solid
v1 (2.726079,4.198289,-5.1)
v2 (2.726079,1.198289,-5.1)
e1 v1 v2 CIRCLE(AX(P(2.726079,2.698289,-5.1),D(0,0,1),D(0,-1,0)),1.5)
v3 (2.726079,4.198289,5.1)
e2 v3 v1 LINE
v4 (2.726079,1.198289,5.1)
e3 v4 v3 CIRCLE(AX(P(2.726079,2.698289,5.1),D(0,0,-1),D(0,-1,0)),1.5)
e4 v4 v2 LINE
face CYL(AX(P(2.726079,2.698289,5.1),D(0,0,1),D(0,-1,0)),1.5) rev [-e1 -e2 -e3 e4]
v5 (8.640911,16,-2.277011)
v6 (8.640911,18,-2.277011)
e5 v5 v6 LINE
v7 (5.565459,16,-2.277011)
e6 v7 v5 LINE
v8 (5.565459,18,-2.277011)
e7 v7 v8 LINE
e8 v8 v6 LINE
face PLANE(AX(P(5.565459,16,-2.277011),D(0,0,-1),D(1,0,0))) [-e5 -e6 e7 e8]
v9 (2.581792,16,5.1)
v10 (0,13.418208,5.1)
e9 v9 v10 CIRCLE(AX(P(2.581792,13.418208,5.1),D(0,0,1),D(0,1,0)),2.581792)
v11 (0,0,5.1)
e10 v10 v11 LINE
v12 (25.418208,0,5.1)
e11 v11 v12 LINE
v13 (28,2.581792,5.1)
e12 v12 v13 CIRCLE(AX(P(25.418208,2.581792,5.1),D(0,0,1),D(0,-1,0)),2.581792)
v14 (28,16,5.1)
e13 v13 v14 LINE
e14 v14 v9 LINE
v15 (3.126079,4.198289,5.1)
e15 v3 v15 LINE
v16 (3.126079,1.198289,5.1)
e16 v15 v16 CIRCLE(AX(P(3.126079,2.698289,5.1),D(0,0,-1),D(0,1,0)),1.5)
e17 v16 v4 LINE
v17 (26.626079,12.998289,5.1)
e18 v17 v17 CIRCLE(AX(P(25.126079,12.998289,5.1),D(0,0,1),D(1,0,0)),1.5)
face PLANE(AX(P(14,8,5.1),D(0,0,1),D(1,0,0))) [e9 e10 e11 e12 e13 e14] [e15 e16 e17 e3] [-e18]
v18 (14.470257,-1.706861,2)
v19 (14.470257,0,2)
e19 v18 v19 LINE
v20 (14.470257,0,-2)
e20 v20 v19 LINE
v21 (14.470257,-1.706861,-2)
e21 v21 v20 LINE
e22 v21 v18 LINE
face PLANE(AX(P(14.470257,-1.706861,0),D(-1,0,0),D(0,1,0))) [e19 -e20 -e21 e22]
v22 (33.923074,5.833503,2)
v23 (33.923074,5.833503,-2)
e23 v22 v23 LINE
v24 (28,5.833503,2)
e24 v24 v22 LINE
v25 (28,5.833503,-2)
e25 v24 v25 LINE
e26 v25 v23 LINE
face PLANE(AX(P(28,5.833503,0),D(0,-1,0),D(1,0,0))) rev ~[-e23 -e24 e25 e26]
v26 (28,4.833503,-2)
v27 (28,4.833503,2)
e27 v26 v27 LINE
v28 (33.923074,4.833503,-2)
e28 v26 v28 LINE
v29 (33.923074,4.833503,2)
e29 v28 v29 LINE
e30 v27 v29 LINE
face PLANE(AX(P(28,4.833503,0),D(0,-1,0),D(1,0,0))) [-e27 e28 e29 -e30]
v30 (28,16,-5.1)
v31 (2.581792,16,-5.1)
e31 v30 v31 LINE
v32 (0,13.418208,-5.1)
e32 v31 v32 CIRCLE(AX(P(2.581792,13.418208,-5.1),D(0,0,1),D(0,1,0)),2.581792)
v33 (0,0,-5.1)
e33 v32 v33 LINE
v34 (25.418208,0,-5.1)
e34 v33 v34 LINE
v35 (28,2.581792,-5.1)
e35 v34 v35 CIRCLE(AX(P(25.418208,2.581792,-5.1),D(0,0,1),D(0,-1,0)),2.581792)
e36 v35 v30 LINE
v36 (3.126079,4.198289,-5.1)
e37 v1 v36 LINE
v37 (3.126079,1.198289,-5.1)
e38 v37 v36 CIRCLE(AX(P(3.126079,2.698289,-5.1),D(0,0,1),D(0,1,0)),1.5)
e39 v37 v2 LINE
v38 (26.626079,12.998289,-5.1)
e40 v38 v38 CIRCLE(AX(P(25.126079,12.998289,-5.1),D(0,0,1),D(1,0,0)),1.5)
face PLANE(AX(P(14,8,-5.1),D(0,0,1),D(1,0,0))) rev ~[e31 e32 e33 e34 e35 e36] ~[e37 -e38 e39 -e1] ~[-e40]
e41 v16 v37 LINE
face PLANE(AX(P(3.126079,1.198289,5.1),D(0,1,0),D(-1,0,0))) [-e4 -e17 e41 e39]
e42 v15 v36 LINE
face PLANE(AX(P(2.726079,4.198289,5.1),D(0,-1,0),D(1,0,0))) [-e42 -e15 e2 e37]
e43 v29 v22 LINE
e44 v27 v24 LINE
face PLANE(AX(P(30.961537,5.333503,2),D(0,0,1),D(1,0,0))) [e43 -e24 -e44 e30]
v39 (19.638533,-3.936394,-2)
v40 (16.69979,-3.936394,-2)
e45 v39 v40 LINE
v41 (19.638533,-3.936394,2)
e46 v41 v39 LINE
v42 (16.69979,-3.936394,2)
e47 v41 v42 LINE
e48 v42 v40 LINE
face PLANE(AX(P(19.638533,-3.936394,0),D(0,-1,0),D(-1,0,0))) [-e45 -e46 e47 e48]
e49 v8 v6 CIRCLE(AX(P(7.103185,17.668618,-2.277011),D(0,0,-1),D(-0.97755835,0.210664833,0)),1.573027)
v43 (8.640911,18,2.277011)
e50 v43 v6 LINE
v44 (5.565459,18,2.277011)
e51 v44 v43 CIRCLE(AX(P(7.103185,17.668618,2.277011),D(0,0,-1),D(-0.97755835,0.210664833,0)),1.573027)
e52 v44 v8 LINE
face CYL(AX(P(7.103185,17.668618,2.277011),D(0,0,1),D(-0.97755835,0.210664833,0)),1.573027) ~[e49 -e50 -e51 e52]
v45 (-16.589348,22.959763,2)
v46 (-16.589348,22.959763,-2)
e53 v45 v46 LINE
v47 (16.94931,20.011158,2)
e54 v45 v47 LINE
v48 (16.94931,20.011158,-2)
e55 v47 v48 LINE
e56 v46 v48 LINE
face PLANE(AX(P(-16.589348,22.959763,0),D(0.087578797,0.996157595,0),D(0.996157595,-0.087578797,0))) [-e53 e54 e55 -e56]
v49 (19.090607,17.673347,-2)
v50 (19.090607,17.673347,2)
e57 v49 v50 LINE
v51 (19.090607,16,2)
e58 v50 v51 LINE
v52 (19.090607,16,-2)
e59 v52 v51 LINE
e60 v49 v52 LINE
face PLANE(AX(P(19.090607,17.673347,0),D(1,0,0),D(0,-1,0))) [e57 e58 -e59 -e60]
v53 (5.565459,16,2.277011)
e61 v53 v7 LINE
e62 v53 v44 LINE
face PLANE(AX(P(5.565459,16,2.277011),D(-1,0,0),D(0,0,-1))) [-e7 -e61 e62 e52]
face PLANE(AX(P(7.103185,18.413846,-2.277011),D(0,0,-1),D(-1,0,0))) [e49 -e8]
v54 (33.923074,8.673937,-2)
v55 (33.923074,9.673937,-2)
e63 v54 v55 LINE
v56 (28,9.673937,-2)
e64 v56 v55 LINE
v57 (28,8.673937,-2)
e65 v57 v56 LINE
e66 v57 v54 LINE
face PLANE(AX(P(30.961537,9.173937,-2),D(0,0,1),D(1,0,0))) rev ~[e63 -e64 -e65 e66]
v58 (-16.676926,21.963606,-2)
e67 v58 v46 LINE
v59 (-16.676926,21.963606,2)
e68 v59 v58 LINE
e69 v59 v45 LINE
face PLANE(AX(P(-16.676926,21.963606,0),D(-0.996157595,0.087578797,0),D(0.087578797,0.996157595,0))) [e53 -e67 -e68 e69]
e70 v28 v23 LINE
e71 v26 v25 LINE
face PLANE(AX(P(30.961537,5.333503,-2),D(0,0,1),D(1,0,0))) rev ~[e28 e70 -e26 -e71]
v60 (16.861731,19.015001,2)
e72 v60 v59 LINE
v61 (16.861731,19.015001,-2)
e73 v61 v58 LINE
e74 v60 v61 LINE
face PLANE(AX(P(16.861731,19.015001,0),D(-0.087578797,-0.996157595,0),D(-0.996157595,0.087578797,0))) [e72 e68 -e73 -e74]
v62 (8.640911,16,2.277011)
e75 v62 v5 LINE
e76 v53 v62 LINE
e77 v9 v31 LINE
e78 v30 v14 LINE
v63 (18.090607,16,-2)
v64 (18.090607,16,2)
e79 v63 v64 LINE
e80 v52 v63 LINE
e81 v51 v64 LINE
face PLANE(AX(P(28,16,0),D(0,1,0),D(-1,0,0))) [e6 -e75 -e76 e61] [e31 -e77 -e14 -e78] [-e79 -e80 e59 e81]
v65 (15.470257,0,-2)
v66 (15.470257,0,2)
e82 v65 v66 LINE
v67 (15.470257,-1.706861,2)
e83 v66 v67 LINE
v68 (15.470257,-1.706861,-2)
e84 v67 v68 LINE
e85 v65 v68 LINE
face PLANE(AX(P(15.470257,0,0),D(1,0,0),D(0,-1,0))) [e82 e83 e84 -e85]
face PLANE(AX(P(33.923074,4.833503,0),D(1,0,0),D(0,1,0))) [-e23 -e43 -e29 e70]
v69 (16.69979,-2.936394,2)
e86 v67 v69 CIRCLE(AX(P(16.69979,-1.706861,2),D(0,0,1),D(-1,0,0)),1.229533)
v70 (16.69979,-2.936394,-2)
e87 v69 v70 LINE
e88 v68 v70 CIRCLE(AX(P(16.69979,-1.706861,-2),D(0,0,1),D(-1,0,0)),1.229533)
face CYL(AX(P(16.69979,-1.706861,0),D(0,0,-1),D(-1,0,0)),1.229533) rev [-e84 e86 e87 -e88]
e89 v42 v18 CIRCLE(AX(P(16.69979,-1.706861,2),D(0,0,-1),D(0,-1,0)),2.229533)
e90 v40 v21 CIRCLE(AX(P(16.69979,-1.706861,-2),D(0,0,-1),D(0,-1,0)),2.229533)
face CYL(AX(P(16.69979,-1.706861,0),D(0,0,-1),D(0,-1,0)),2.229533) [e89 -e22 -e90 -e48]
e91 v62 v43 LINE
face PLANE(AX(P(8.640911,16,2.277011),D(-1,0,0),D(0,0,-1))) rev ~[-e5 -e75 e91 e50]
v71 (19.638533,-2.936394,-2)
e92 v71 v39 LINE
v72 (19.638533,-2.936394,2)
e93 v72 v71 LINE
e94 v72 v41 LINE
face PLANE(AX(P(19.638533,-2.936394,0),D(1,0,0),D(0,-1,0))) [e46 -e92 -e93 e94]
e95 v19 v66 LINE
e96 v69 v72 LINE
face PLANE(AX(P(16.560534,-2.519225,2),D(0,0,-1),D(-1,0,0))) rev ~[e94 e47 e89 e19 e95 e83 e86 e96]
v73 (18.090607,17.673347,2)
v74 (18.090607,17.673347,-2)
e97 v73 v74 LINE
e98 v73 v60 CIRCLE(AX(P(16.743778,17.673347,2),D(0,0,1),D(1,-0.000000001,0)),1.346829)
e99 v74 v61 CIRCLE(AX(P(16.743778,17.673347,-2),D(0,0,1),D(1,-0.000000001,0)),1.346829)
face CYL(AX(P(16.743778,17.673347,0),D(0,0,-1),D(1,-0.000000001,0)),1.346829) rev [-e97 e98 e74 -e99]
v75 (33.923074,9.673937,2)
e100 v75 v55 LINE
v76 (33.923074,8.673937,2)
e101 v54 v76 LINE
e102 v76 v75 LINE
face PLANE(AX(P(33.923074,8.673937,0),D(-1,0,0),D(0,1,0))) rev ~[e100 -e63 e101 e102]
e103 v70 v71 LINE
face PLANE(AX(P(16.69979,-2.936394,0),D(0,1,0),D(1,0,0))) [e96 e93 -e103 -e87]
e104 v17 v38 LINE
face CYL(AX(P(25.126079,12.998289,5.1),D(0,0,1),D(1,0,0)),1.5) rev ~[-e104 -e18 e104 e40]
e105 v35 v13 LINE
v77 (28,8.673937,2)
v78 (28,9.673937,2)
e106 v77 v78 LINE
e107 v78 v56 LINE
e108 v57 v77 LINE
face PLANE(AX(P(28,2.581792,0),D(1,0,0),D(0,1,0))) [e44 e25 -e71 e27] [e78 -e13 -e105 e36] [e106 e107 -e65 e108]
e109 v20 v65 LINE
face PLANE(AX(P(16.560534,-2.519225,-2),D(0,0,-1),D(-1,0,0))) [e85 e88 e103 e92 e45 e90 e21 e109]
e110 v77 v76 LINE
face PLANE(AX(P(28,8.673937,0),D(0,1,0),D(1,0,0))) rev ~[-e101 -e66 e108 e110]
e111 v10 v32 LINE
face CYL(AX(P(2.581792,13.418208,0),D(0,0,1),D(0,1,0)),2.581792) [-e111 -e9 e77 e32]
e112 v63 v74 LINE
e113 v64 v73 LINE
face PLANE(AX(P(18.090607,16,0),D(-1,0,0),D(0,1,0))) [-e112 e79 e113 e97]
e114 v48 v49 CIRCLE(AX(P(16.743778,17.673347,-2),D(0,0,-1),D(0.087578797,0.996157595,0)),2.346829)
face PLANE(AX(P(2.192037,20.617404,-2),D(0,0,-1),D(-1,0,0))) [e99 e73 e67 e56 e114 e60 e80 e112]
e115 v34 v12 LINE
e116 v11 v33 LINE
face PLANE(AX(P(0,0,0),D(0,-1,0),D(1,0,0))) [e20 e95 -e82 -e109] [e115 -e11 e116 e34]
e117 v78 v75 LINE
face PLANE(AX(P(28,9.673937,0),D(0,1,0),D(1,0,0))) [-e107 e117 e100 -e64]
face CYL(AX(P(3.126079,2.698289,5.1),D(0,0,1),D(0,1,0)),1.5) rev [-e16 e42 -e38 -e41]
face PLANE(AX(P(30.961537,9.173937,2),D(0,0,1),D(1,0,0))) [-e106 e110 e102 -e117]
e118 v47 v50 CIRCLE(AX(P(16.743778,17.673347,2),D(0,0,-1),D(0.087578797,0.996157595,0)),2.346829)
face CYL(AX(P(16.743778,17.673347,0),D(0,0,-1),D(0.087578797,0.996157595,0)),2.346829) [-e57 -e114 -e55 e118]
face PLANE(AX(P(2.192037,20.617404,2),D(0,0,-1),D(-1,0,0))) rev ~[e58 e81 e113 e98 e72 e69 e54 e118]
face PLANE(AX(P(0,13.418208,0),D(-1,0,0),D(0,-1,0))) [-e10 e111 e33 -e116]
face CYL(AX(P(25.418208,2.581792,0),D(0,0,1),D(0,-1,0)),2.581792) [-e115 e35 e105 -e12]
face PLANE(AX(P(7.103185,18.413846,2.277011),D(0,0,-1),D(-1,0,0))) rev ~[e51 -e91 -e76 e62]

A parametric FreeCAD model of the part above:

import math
import FreeCAD as App
import Part
import Sketcher

V = App.Vector

doc = App.newDocument("Part")
body = doc.addObject("PartDesign::Body", "Body")

sketch1 = body.newObject("Sketcher::SketchObject", "Sketch")
sketch1.AttachmentSupport = (doc.getObject("XY_Plane"), [""])
sketch1.MapMode = "FlatFace"
sketch1.addGeometry(Part.LineSegment(V(0, 0, 0), V(25.4, 0, 0)), False)
sketch1.addGeometry(Part.ArcOfCircle(Part.Circle(V(25.4, 2.6, 0), V(0, 0, 1), 2.6), math.radians(-90), math.radians(0)), False)
sketch1.addGeometry(Part.LineSegment(V(28, 2.6, 0), V(28, 16, 0)), False)
sketch1.addGeometry(Part.LineSegment(V(28, 16, 0), V(2.6, 16, 0)), False)
sketch1.addGeometry(Part.ArcOfCircle(Part.Circle(V(2.6, 13.4, 0), V(0, 0, 1), 2.6), math.radians(90), math.radians(180)), False)
sketch1.addGeometry(Part.LineSegment(V(0, 13.4, 0), V(0, 0, 0)), False)
sketch1.addConstraint(Sketcher.Constraint("Tangent", 0, 2, 1, 1))
sketch1.addConstraint(Sketcher.Constraint("Tangent", 1, 2, 2, 1))
sketch1.addConstraint(Sketcher.Constraint("Coincident", 2, 2, 3, 1))
sketch1.addConstraint(Sketcher.Constraint("Tangent", 3, 2, 4, 1))
sketch1.addConstraint(Sketcher.Constraint("Tangent", 4, 2, 5, 1))
sketch1.addConstraint(Sketcher.Constraint("Coincident", 5, 2, 0, 1))
sketch1.addConstraint(Sketcher.Constraint("Horizontal", 0))
sketch1.addConstraint(Sketcher.Constraint("Vertical", 2))
sketch1.addConstraint(Sketcher.Constraint("Horizontal", 3))
sketch1.addConstraint(Sketcher.Constraint("Vertical", 5))
sketch1.addConstraint(Sketcher.Constraint("Coincident", 5, 2, -1, 1))
sketch1.addConstraint(Sketcher.Constraint("Equal", 1, 4))
sketch1.addConstraint(Sketcher.Constraint("DistanceX", -1, 1, 1, 2, 28.0))
sketch1.addConstraint(Sketcher.Constraint("DistanceY", -1, 1, 2, 2, 16.0))
sketch1.addConstraint(Sketcher.Constraint("Radius", 1, 2.581792))
pad1 = body.newObject("PartDesign::Pad", "Pad")
pad1.Profile = sketch1
pad1.Length = 10.2
pad1.Midplane = True

sketch2 = body.newObject("Sketcher::SketchObject", "Sketch001")
sketch2.AttachmentSupport = (doc.getObject("XY_Plane"), [""])
sketch2.MapMode = "FlatFace"
sketch2.AttachmentOffset = App.Placement(V(0, 0, 5.1), App.Rotation())
sketch2.addGeometry(Part.Circle(V(25.13, 13, 0), V(0, 0, 1), 1.5), False)
sketch2.addGeometry(Part.LineSegment(V(3.13, 4.2, 0), V(2.73, 4.2, 0)), False)
sketch2.addGeometry(Part.ArcOfCircle(Part.Circle(V(2.73, 2.7, 0), V(0, 0, 1), 1.5), math.radians(90), math.radians(270)), False)
sketch2.addGeometry(Part.LineSegment(V(2.73, 1.2, 0), V(3.13, 1.2, 0)), False)
sketch2.addGeometry(Part.ArcOfCircle(Part.Circle(V(3.13, 2.7, 0), V(0, 0, 1), 1.5), math.radians(-90), math.radians(90)), False)
sketch2.addConstraint(Sketcher.Constraint("Tangent", 1, 2, 2, 1))
sketch2.addConstraint(Sketcher.Constraint("Tangent", 2, 2, 3, 1))
sketch2.addConstraint(Sketcher.Constraint("Tangent", 3, 2, 4, 1))
sketch2.addConstraint(Sketcher.Constraint("Tangent", 4, 2, 1, 1))
sketch2.addConstraint(Sketcher.Constraint("Horizontal", 1))
sketch2.addConstraint(Sketcher.Constraint("Horizontal", 3))
sketch2.addConstraint(Sketcher.Constraint("Equal", 0, 2))
sketch2.addConstraint(Sketcher.Constraint("Diameter", 0, 3.0))
sketch2.addConstraint(Sketcher.Constraint("DistanceX", 1, 2, 1, 1, 0.4))
sketch2.addConstraint(Sketcher.Constraint("DistanceX", 4, 3, 0, 3, 22.0))
sketch2.addConstraint(Sketcher.Constraint("DistanceY", 2, 3, 0, 3, 10.3))
sketch2.addConstraint(Sketcher.Constraint("DistanceX", -1, 1, 0, 3, 25.126079))
sketch2.addConstraint(Sketcher.Constraint("DistanceY", -1, 1, 0, 3, 12.998289))
pocket1 = body.newObject("PartDesign::Pocket", "Pocket")
pocket1.Profile = sketch2
pocket1.Type = "ThroughAll"

sketch3 = body.newObject("Sketcher::SketchObject", "Sketch002")
sketch3.AttachmentSupport = (doc.getObject("XZ_Plane"), [""])
sketch3.MapMode = "FlatFace"
sketch3.AttachmentOffset = App.Placement(V(0, 0, -16), App.Rotation())
sketch3.addGeometry(Part.LineSegment(V(5.6, -2.3, 0), V(5.6, 2.3, 0)), False)
sketch3.addGeometry(Part.LineSegment(V(5.6, 2.3, 0), V(8.6, 2.3, 0)), False)
sketch3.addGeometry(Part.LineSegment(V(8.6, 2.3, 0), V(8.6, -2.3, 0)), False)
sketch3.addGeometry(Part.LineSegment(V(8.6, -2.3, 0), V(5.6, -2.3, 0)), False)
sketch3.addConstraint(Sketcher.Constraint("Coincident", 0, 2, 1, 1))
sketch3.addConstraint(Sketcher.Constraint("Coincident", 1, 2, 2, 1))
sketch3.addConstraint(Sketcher.Constraint("Coincident", 2, 2, 3, 1))
sketch3.addConstraint(Sketcher.Constraint("Coincident", 3, 2, 0, 1))
sketch3.addConstraint(Sketcher.Constraint("Vertical", 0))
sketch3.addConstraint(Sketcher.Constraint("Horizontal", 1))
sketch3.addConstraint(Sketcher.Constraint("Vertical", 2))
sketch3.addConstraint(Sketcher.Constraint("Horizontal", 3))
sketch3.addConstraint(Sketcher.Constraint("DistanceX", 1, 1, 1, 2, 3.075452))
sketch3.addConstraint(Sketcher.Constraint("DistanceY", 0, 1, 0, 2, 4.554022))
sketch3.addConstraint(Sketcher.Constraint("DistanceX", -1, 1, 0, 2, 5.565459))
sketch3.addConstraint(Sketcher.Constraint("DistanceY", -1, 1, 0, 2, 2.277011))
pad2 = body.newObject("PartDesign::Pad", "Pad001")
pad2.Profile = sketch3
pad2.Length = 2
pad2.Reversed = True

sketch4 = body.newObject("Sketcher::SketchObject", "Sketch003")
sketch4.AttachmentSupport = (doc.getObject("XY_Plane"), [""])
sketch4.MapMode = "FlatFace"
sketch4.AttachmentOffset = App.Placement(V(0, 0, 2.277011), App.Rotation())
sketch4.addGeometry(Part.LineSegment(V(8.6, 18, 0), V(5.6, 18, 0)), False)
sketch4.addGeometry(Part.ArcOfCircle(Part.Circle(V(7.1, 17.7, 0), V(0, 0, 1), 1.6), math.radians(12), math.radians(168)), False)
sketch4.addConstraint(Sketcher.Constraint("Coincident", 0, 1, 1, 1))
sketch4.addConstraint(Sketcher.Constraint("Coincident", 1, 2, 0, 2))
sketch4.addConstraint(Sketcher.Constraint("Horizontal", 0))
sketch4.addConstraint(Sketcher.Constraint("DistanceY", -1, 1, 0, 1, 18.0))
sketch4.addConstraint(Sketcher.Constraint("Radius", 1, 1.573027))
sketch4.addConstraint(Sketcher.Constraint("DistanceX", 0, 2, 0, 1, 3.075452))
sketch4.addConstraint(Sketcher.Constraint("DistanceX", -1, 1, 0, 1, 8.640911))
pad3 = body.newObject("PartDesign::Pad", "Pad002")
pad3.Profile = sketch4
pad3.Length = 4.554022
pad3.Reversed = True

sketch5 = body.newObject("Sketcher::SketchObject", "Sketch004")
sketch5.AttachmentSupport = (doc.getObject("XY_Plane"), [""])
sketch5.MapMode = "FlatFace"
sketch5.addGeometry(Part.LineSegment(V(18.090607, 17.673347, 0), V(18.090607, 16, 0)), False)
sketch5.addGeometry(Part.LineSegment(V(18.090607, 16, 0), V(19.090607, 16, 0)), False)
sketch5.addGeometry(Part.LineSegment(V(19.090607, 16, 0), V(19.090607, 17.673347, 0)), False)
sketch5.addGeometry(Part.ArcOfCircle(Part.Circle(V(16.743778, 17.673347, 0), V(0, 0, 1), 2.346829), math.radians(0), math.radians(84.975668)), False)
sketch5.addGeometry(Part.LineSegment(V(16.94931, 20.011158, 0), V(-16.589348, 22.959763, 0)), False)
sketch5.addGeometry(Part.LineSegment(V(-16.589348, 22.959763, 0), V(-16.676926, 21.963606, 0)), False)
sketch5.addGeometry(Part.LineSegment(V(-16.676926, 21.963606, 0), V(16.861731, 19.015001, 0)), False)
sketch5.addGeometry(Part.ArcOfCircle(Part.Circle(V(16.743778, 17.673347, 0), V(0, 0, 1), 1.346829), math.radians(0), math.radians(84.975668)), False)
sketch5.addGeometry(Part.LineSegment(V(15.470257, -1.706861, 0), V(15.470257, 0, 0)), False)
sketch5.addGeometry(Part.LineSegment(V(15.470257, 0, 0), V(14.470257, 0, 0)), False)
sketch5.addGeometry(Part.LineSegment(V(14.470257, 0, 0), V(14.470257, -1.706861, 0)), False)
sketch5.addGeometry(Part.ArcOfCircle(Part.Circle(V(16.69979, -1.706861, 0), V(0, 0, 1), 2.229533), math.radians(180), math.radians(270)), False)
sketch5.addGeometry(Part.LineSegment(V(16.69979, -3.936394, 0), V(19.638533, -3.936394, 0)), False)
sketch5.addGeometry(Part.LineSegment(V(19.638533, -3.936394, 0), V(19.638533, -2.936394, 0)), False)
sketch5.addGeometry(Part.LineSegment(V(19.638533, -2.936394, 0), V(16.69979, -2.936394, 0)), False)
sketch5.addGeometry(Part.ArcOfCircle(Part.Circle(V(16.69979, -1.706861, 0), V(0, 0, 1), 1.229533), math.radians(180), math.radians(270)), False)
sketch5.addGeometry(Part.LineSegment(V(28, 9.673937, 0), V(28, 8.673937, 0)), False)
sketch5.addGeometry(Part.LineSegment(V(28, 8.673937, 0), V(33.923074, 8.673937, 0)), False)
sketch5.addGeometry(Part.LineSegment(V(33.923074, 8.673937, 0), V(33.923074, 9.673937, 0)), False)
sketch5.addGeometry(Part.LineSegment(V(33.923074, 9.673937, 0), V(28, 9.673937, 0)), False)
sketch5.addGeometry(Part.LineSegment(V(28, 5.833503, 0), V(28, 4.833503, 0)), False)
sketch5.addGeometry(Part.LineSegment(V(28, 4.833503, 0), V(33.923074, 4.833503, 0)), False)
sketch5.addGeometry(Part.LineSegment(V(33.923074, 4.833503, 0), V(33.923074, 5.833503, 0)), False)
sketch5.addGeometry(Part.LineSegment(V(33.923074, 5.833503, 0), V(28, 5.833503, 0)), False)
sketch5.addConstraint(Sketcher.Constraint("Coincident", 0, 2, 1, 1))
sketch5.addConstraint(Sketcher.Constraint("Coincident", 1, 2, 2, 1))
sketch5.addConstraint(Sketcher.Constraint("Coincident", 2, 2, 3, 1))
sketch5.addConstraint(Sketcher.Constraint("Coincident", 3, 2, 4, 1))
sketch5.addConstraint(Sketcher.Constraint("Coincident", 4, 2, 5, 1))
sketch5.addConstraint(Sketcher.Constraint("Coincident", 5, 2, 6, 1))
sketch5.addConstraint(Sketcher.Constraint("Coincident", 6, 2, 7, 2))
sketch5.addConstraint(Sketcher.Constraint("Coincident", 7, 1, 0, 1))
sketch5.addConstraint(Sketcher.Constraint("Coincident", 8, 2, 9, 1))
sketch5.addConstraint(Sketcher.Constraint("Coincident", 9, 2, 10, 1))
sketch5.addConstraint(Sketcher.Constraint("Coincident", 10, 2, 11, 1))
sketch5.addConstraint(Sketcher.Constraint("Coincident", 11, 2, 12, 1))
sketch5.addConstraint(Sketcher.Constraint("Coincident", 12, 2, 13, 1))
sketch5.addConstraint(Sketcher.Constraint("Coincident", 13, 2, 14, 1))
sketch5.addConstraint(Sketcher.Constraint("Coincident", 14, 2, 15, 2))
sketch5.addConstraint(Sketcher.Constraint("Coincident", 15, 1, 8, 1))
sketch5.addConstraint(Sketcher.Constraint("Coincident", 16, 2, 17, 1))
sketch5.addConstraint(Sketcher.Constraint("Coincident", 17, 2, 18, 1))
sketch5.addConstraint(Sketcher.Constraint("Coincident", 18, 2, 19, 1))
sketch5.addConstraint(Sketcher.Constraint("Coincident", 19, 2, 16, 1))
sketch5.addConstraint(Sketcher.Constraint("Coincident", 20, 2, 21, 1))
sketch5.addConstraint(Sketcher.Constraint("Coincident", 21, 2, 22, 1))
sketch5.addConstraint(Sketcher.Constraint("Coincident", 22, 2, 23, 1))
sketch5.addConstraint(Sketcher.Constraint("Coincident", 23, 2, 20, 1))
sketch5.addConstraint(Sketcher.Constraint("Vertical", 0))
sketch5.addConstraint(Sketcher.Constraint("Horizontal", 1))
sketch5.addConstraint(Sketcher.Constraint("Vertical", 2))
sketch5.addConstraint(Sketcher.Constraint("Vertical", 8))
sketch5.addConstraint(Sketcher.Constraint("Horizontal", 9))
sketch5.addConstraint(Sketcher.Constraint("Vertical", 10))
sketch5.addConstraint(Sketcher.Constraint("Horizontal", 12))
sketch5.addConstraint(Sketcher.Constraint("Vertical", 13))
sketch5.addConstraint(Sketcher.Constraint("Horizontal", 14))
sketch5.addConstraint(Sketcher.Constraint("Vertical", 16))
sketch5.addConstraint(Sketcher.Constraint("Horizontal", 17))
sketch5.addConstraint(Sketcher.Constraint("Vertical", 18))
sketch5.addConstraint(Sketcher.Constraint("Horizontal", 19))
sketch5.addConstraint(Sketcher.Constraint("Vertical", 20))
sketch5.addConstraint(Sketcher.Constraint("Horizontal", 21))
sketch5.addConstraint(Sketcher.Constraint("Vertical", 22))
sketch5.addConstraint(Sketcher.Constraint("Horizontal", 23))
sketch5.addConstraint(Sketcher.Constraint("Coincident", 7, 3, 3, 3))
sketch5.addConstraint(Sketcher.Constraint("Coincident", 15, 3, 11, 3))
sketch5.addConstraint(Sketcher.Constraint("PointOnObject", 8, 2, -1))
sketch5.addConstraint(Sketcher.Constraint("DistanceX", 1, 1, 1, 2, 1.0))
sketch5.addConstraint(Sketcher.Constraint("DistanceX", 9, 2, 9, 1, 1.0))
sketch5.addConstraint(Sketcher.Constraint("DistanceY", 16, 2, 16, 1, 1.0))
sketch5.addConstraint(Sketcher.Constraint("DistanceY", 20, 2, 20, 1, 1.0))
sketch5.addConstraint(Sketcher.Constraint("Distance", 5, 1.0))
sketch5.addConstraint(Sketcher.Constraint("DistanceY", -1, 1, 0, 2, 16.0))
sketch5.addConstraint(Sketcher.Constraint("DistanceX", -1, 1, 16, 2, 28.0))
sketch5.addConstraint(Sketcher.Constraint("DistanceX", -1, 1, 20, 2, 28.0))
sketch5.addConstraint(Sketcher.Constraint("Radius", 3, 2.346829))
sketch5.addConstraint(Sketcher.Constraint("DistanceY", -1, 1, 6, 2, 19.015001))
sketch5.addConstraint(Sketcher.Constraint("Radius", 11, 2.229533))
sketch5.addConstraint(Sketcher.Constraint("DistanceY", 8, 1, 8, 2, 1.706861))
sketch5.addConstraint(Sketcher.Constraint("DistanceY", 10, 2, 10, 1, 1.706861))
sketch5.addConstraint(Sketcher.Constraint("DistanceX", 12, 1, 12, 2, 2.938743))
sketch5.addConstraint(Sketcher.Constraint("DistanceX", 14, 2, 14, 1, 2.938743))
sketch5.addConstraint(Sketcher.Constraint("DistanceX", 17, 1, 17, 2, 5.923074))
sketch5.addConstraint(Sketcher.Constraint("DistanceX", 21, 1, 21, 2, 5.923074))
sketch5.addConstraint(Sketcher.Constraint("DistanceY", 0, 2, 0, 1, 1.673347))
sketch5.addConstraint(Sketcher.Constraint("DistanceY", 2, 1, 2, 2, 1.673347))
sketch5.addConstraint(Sketcher.Constraint("DistanceX", -1, 1, 11, 3, 16.69979))
sketch5.addConstraint(Sketcher.Constraint("DistanceY", 11, 3, -1, 1, 1.706861))
sketch5.addConstraint(Sketcher.Constraint("DistanceX", -1, 1, 3, 2, 16.94931))
sketch5.addConstraint(Sketcher.Constraint("DistanceY", -1, 1, 3, 2, 20.011158))
sketch5.addConstraint(Sketcher.Constraint("DistanceX", -1, 1, 11, 2, 16.69979))
sketch5.addConstraint(Sketcher.Constraint("DistanceY", 11, 3, 3, 3, 19.380208))
sketch5.addConstraint(Sketcher.Constraint("DistanceX", 5, 2, 4, 2, 0.087579))
sketch5.addConstraint(Sketcher.Constraint("DistanceY", 3, 3, 5, 2, 4.290259))
sketch5.addConstraint(Sketcher.Constraint("DistanceY", 16, 2, 2, 2, 8.99941))
sketch5.addConstraint(Sketcher.Constraint("Distance", 4, 33.668024))
sketch5.addConstraint(Sketcher.Constraint("DistanceY", -1, 1, 20, 2, 4.833503))
pad4 = body.newObject("PartDesign::Pad", "Pad003")
pad4.Profile = sketch5
pad4.Length = 4
pad4.Midplane = True

doc.recompute()
